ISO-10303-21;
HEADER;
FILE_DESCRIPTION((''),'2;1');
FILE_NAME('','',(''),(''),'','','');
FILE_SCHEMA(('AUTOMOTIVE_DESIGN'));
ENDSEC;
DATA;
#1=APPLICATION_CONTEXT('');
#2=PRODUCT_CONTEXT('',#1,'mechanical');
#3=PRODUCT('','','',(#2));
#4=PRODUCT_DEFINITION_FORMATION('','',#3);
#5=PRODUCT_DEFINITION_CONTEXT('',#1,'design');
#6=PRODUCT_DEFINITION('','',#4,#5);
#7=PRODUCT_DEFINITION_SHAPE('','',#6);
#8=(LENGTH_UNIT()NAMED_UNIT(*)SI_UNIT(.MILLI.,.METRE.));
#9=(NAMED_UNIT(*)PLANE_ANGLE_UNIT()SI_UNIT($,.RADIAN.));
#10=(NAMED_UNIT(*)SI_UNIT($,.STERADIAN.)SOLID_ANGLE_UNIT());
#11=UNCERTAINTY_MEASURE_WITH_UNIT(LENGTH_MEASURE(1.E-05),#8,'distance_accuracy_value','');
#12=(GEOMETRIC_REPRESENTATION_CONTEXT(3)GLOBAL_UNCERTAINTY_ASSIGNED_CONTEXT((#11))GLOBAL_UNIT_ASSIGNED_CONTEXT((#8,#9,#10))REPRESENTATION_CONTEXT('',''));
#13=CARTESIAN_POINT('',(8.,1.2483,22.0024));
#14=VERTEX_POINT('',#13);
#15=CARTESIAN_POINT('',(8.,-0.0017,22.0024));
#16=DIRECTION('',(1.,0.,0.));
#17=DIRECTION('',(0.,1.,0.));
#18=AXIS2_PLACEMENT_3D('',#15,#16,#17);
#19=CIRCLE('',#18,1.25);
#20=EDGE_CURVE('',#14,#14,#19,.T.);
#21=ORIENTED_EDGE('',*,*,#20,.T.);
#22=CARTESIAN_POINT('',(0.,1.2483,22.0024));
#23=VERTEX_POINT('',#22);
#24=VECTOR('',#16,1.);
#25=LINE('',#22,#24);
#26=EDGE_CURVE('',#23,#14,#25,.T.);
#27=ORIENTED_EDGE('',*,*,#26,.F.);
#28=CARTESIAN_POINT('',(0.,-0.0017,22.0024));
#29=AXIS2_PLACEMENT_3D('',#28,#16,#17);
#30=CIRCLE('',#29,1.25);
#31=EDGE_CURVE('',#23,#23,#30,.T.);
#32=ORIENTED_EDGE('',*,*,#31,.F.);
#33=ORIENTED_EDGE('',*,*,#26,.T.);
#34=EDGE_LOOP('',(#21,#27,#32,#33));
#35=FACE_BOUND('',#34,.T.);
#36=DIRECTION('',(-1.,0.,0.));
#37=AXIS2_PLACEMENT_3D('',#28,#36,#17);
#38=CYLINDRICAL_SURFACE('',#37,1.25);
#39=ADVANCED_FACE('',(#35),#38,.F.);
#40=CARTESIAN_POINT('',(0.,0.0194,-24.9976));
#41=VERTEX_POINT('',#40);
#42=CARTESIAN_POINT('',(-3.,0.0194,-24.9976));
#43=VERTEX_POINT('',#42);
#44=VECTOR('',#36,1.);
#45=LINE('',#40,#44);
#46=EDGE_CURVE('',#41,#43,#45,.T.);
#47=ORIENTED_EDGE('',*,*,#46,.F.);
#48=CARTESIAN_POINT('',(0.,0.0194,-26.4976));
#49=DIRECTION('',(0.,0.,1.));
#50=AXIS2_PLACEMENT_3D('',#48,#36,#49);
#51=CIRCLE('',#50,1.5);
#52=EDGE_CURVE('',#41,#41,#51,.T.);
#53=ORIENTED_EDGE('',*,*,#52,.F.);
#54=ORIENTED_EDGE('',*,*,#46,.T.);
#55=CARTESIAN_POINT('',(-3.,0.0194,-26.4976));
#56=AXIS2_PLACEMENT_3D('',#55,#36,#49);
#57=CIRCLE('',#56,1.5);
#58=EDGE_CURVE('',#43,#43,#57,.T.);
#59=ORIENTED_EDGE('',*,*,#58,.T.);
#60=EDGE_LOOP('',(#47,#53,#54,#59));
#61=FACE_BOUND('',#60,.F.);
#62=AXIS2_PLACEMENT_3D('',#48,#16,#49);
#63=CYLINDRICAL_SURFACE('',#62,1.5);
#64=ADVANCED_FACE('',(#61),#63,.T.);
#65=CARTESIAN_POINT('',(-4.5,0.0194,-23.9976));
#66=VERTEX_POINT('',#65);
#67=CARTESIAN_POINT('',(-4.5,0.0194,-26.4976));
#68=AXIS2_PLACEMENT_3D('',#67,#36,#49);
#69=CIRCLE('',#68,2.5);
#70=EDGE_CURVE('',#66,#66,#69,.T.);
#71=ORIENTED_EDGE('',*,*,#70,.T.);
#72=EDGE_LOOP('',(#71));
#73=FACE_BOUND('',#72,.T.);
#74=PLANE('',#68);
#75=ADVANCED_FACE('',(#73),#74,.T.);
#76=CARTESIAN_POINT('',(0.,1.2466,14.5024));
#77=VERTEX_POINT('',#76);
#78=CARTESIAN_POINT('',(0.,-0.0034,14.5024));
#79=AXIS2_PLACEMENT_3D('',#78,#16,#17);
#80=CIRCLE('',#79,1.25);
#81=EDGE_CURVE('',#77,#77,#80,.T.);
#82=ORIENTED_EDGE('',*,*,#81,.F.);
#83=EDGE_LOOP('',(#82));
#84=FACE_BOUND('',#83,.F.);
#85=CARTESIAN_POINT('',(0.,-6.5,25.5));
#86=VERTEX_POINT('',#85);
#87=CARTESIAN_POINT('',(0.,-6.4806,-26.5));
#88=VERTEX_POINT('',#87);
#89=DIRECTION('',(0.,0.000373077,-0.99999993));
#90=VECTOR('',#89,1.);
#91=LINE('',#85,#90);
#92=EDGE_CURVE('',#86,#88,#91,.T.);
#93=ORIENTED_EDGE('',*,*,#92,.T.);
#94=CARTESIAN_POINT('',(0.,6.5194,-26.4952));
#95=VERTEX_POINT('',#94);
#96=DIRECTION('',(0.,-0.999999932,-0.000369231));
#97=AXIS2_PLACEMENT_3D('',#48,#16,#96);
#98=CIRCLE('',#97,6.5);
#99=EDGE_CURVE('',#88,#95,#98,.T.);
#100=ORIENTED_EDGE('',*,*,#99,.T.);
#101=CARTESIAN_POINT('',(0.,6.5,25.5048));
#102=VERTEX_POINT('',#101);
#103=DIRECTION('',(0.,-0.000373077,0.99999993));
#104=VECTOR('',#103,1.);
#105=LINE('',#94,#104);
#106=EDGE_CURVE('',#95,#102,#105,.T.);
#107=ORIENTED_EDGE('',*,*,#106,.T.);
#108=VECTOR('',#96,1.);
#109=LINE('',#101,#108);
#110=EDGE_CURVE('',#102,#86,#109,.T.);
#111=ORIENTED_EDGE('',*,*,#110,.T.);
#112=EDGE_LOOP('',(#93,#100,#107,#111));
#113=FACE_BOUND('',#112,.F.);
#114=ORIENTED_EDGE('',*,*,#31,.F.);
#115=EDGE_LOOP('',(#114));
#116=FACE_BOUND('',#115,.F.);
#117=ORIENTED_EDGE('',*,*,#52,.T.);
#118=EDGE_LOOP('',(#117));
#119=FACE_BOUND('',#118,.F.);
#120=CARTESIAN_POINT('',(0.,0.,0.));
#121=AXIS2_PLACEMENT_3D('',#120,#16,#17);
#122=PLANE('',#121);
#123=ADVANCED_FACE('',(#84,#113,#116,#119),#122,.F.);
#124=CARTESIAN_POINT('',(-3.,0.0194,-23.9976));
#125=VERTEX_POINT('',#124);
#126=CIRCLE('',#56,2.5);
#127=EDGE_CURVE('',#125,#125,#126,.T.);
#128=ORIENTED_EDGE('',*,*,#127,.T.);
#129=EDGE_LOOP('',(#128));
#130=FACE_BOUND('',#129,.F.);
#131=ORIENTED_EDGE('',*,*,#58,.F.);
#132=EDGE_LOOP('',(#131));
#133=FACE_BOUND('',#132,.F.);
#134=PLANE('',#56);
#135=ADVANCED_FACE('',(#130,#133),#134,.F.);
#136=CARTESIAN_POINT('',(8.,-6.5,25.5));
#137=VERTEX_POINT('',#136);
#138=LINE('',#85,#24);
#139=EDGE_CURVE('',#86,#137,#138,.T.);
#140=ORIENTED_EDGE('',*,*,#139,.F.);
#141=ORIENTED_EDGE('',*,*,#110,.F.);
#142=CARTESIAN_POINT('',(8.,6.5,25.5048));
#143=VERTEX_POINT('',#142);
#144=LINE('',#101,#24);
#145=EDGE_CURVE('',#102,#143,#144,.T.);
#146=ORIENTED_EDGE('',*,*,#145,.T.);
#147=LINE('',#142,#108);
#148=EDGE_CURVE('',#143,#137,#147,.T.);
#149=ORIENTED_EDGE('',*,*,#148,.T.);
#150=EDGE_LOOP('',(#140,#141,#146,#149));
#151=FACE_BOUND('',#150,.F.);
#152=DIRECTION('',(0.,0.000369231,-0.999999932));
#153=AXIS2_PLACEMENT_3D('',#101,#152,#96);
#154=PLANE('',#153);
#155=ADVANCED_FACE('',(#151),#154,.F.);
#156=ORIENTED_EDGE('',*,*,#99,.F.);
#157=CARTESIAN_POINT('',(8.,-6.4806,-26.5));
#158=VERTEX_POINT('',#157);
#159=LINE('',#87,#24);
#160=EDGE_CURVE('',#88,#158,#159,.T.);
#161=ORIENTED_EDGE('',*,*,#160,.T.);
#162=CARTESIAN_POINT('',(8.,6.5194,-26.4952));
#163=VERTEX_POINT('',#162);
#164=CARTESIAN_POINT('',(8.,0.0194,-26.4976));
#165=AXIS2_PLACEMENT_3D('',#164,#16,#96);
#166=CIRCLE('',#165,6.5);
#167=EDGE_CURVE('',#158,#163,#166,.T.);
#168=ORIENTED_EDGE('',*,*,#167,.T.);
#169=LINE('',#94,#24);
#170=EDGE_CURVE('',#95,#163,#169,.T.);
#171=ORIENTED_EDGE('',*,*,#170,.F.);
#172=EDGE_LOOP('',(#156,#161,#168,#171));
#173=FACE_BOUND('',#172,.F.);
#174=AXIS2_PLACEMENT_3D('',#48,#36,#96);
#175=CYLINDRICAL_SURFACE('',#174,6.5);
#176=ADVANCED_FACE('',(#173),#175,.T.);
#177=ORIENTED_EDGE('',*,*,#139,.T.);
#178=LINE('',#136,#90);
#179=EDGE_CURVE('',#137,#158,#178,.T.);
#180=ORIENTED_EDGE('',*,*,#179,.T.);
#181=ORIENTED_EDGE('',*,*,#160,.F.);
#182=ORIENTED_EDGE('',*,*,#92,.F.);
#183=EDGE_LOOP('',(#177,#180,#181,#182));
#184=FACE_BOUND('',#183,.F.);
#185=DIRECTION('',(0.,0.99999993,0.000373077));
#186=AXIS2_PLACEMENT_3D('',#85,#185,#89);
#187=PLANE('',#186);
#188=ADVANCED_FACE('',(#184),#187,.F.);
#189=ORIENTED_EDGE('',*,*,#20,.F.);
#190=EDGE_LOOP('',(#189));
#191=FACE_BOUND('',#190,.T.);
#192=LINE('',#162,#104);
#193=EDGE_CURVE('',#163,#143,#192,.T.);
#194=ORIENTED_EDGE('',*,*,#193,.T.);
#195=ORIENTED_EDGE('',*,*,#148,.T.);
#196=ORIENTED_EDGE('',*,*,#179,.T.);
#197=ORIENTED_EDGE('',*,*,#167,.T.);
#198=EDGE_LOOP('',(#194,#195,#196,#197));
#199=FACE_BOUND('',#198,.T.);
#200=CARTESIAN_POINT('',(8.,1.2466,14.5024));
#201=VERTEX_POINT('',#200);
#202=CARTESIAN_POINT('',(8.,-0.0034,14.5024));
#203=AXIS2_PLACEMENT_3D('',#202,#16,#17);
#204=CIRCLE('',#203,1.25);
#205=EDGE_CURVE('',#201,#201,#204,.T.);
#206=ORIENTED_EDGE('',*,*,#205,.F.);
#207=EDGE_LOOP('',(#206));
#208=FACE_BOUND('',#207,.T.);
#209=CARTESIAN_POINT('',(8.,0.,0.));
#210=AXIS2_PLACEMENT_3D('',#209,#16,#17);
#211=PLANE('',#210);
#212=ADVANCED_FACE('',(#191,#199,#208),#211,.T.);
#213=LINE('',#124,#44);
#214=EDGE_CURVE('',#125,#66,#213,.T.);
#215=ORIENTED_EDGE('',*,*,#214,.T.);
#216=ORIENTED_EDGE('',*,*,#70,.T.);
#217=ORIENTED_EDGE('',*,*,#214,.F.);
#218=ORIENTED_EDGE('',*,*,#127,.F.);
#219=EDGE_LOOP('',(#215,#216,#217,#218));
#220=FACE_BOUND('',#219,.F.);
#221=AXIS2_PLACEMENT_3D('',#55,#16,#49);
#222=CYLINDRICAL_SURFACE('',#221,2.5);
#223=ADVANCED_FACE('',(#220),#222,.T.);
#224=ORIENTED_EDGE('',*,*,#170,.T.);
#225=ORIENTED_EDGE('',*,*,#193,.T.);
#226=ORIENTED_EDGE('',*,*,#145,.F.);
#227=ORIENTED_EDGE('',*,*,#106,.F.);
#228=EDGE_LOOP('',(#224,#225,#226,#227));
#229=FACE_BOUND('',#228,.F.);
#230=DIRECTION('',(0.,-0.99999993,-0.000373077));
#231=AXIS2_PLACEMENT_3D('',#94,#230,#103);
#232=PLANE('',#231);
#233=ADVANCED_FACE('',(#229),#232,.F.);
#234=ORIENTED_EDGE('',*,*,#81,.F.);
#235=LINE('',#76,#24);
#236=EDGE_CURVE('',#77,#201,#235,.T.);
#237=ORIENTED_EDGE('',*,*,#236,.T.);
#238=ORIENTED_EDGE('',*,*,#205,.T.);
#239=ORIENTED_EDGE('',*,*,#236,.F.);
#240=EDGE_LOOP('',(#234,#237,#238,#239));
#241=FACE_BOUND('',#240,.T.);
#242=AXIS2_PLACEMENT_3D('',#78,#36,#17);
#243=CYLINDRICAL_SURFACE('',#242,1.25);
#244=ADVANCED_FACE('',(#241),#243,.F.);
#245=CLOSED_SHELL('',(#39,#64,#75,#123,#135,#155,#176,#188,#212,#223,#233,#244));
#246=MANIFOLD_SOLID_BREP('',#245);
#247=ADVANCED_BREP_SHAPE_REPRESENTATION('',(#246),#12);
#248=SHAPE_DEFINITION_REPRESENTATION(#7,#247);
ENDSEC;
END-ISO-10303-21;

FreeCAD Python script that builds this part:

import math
import FreeCAD as App
import Part
import Sketcher
Q = App.Units.Quantity

doc = App.newDocument("Part")
body = doc.addObject("PartDesign::Body", "Body")

sketch1 = body.newObject("Sketcher::SketchObject", "Sketch")
sketch1.AttachmentSupport = (doc.getObject("YZ_Plane"), [""])
sketch1.MapMode = "FlatFace"
sketch1.addGeometry([
    Part.ArcOfCircle(Part.Circle(App.Vector(0, -26.5, 0), App.Vector(0, 0, 1), 6.5), math.radians(-180), math.radians(0)),
    Part.LineSegment(App.Vector(6.5, -26.5, 0), App.Vector(6.5, 25.5, 0)),
    Part.LineSegment(App.Vector(6.5, 25.5, 0), App.Vector(-6.5, 25.5, 0)),
    Part.LineSegment(App.Vector(-6.5, 25.5, 0), App.Vector(-6.5, -26.5, 0)),
    Part.Circle(App.Vector(0, 14.5, 0), App.Vector(0, 0, 1), 1.2),
    Part.Circle(App.Vector(0, 22, 0), App.Vector(0, 0, 1), 1.2),
], False)
sketch1.addConstraint([
    Sketcher.Constraint("Tangent", 0, 2, 1, 1),
    Sketcher.Constraint("Coincident", 1, 2, 2, 1),
    Sketcher.Constraint("Coincident", 2, 2, 3, 1),
    Sketcher.Constraint("Tangent", 3, 2, 0, 1),
    Sketcher.Constraint("Equal", 4, 5),
    Sketcher.Constraint("Perpendicular", 1, 2),
    Sketcher.Constraint("Perpendicular", 2, 3),
    Sketcher.Constraint("Diameter", 4, 2.5),
    Sketcher.Constraint("Radius", 0, 6.5),
    Sketcher.Constraint("Distance", 1, 52.0),
    Sketcher.Constraint("DistanceX", -1, 1, 1, 2, 6.5),
    Sketcher.Constraint("DistanceY", 4, 3, 5, 3, 7.5),
    Sketcher.Constraint("DistanceY", 0, 3, 4, 3, 41.0),
    Sketcher.Constraint("DistanceY", -1, 1, 2, 2, 25.5),
    Sketcher.Constraint("Angle", 2, Q("-179.9788 deg")),
    Sketcher.Constraint("DistanceX", 5, 3, 0, 3, 0.021),
    Sketcher.Constraint("DistanceX", 4, 3, -1, 1, 0.0034),
])
pad1 = body.newObject("PartDesign::Pad", "Pad")
pad1.Profile = sketch1
pad1.Length = 8

sketch2 = body.newObject("Sketcher::SketchObject", "Sketch001")
sketch2.AttachmentSupport = (doc.getObject("YZ_Plane"), [""])
sketch2.MapMode = "FlatFace"
sketch2.addGeometry(Part.Circle(App.Vector(0, -26.5, 0), App.Vector(0, 0, 1), 1.5), False)
sketch2.addConstraint([
    Sketcher.Constraint("Diameter", 0, 3.0),
    Sketcher.Constraint("DistanceX", -1, 1, 0, 3, 0.0194),
    Sketcher.Constraint("DistanceY", 0, 3, -1, 1, 26.4976),
])
pad2 = body.newObject("PartDesign::Pad", "Pad001")
pad2.Profile = sketch2
pad2.Length = 3
pad2.Reversed = True

sketch3 = body.newObject("Sketcher::SketchObject", "Sketch002")
sketch3.AttachmentSupport = (doc.getObject("YZ_Plane"), [""])
sketch3.MapMode = "FlatFace"
sketch3.AttachmentOffset = App.Placement(App.Vector(0, 0, -3), App.Rotation())
sketch3.addGeometry(Part.Circle(App.Vector(0, -26.5, 0), App.Vector(0, 0, 1), 2.5), False)
sketch3.addConstraint([
    Sketcher.Constraint("Diameter", 0, 5.0),
    Sketcher.Constraint("DistanceX", -1, 1, 0, 3, 0.0194),
    Sketcher.Constraint("DistanceY", 0, 3, -1, 1, 26.4976),
])
pad3 = body.newObject("PartDesign::Pad", "Pad002")
pad3.Profile = sketch3
pad3.Length = 1.5
pad3.Reversed = True

doc.recompute()
